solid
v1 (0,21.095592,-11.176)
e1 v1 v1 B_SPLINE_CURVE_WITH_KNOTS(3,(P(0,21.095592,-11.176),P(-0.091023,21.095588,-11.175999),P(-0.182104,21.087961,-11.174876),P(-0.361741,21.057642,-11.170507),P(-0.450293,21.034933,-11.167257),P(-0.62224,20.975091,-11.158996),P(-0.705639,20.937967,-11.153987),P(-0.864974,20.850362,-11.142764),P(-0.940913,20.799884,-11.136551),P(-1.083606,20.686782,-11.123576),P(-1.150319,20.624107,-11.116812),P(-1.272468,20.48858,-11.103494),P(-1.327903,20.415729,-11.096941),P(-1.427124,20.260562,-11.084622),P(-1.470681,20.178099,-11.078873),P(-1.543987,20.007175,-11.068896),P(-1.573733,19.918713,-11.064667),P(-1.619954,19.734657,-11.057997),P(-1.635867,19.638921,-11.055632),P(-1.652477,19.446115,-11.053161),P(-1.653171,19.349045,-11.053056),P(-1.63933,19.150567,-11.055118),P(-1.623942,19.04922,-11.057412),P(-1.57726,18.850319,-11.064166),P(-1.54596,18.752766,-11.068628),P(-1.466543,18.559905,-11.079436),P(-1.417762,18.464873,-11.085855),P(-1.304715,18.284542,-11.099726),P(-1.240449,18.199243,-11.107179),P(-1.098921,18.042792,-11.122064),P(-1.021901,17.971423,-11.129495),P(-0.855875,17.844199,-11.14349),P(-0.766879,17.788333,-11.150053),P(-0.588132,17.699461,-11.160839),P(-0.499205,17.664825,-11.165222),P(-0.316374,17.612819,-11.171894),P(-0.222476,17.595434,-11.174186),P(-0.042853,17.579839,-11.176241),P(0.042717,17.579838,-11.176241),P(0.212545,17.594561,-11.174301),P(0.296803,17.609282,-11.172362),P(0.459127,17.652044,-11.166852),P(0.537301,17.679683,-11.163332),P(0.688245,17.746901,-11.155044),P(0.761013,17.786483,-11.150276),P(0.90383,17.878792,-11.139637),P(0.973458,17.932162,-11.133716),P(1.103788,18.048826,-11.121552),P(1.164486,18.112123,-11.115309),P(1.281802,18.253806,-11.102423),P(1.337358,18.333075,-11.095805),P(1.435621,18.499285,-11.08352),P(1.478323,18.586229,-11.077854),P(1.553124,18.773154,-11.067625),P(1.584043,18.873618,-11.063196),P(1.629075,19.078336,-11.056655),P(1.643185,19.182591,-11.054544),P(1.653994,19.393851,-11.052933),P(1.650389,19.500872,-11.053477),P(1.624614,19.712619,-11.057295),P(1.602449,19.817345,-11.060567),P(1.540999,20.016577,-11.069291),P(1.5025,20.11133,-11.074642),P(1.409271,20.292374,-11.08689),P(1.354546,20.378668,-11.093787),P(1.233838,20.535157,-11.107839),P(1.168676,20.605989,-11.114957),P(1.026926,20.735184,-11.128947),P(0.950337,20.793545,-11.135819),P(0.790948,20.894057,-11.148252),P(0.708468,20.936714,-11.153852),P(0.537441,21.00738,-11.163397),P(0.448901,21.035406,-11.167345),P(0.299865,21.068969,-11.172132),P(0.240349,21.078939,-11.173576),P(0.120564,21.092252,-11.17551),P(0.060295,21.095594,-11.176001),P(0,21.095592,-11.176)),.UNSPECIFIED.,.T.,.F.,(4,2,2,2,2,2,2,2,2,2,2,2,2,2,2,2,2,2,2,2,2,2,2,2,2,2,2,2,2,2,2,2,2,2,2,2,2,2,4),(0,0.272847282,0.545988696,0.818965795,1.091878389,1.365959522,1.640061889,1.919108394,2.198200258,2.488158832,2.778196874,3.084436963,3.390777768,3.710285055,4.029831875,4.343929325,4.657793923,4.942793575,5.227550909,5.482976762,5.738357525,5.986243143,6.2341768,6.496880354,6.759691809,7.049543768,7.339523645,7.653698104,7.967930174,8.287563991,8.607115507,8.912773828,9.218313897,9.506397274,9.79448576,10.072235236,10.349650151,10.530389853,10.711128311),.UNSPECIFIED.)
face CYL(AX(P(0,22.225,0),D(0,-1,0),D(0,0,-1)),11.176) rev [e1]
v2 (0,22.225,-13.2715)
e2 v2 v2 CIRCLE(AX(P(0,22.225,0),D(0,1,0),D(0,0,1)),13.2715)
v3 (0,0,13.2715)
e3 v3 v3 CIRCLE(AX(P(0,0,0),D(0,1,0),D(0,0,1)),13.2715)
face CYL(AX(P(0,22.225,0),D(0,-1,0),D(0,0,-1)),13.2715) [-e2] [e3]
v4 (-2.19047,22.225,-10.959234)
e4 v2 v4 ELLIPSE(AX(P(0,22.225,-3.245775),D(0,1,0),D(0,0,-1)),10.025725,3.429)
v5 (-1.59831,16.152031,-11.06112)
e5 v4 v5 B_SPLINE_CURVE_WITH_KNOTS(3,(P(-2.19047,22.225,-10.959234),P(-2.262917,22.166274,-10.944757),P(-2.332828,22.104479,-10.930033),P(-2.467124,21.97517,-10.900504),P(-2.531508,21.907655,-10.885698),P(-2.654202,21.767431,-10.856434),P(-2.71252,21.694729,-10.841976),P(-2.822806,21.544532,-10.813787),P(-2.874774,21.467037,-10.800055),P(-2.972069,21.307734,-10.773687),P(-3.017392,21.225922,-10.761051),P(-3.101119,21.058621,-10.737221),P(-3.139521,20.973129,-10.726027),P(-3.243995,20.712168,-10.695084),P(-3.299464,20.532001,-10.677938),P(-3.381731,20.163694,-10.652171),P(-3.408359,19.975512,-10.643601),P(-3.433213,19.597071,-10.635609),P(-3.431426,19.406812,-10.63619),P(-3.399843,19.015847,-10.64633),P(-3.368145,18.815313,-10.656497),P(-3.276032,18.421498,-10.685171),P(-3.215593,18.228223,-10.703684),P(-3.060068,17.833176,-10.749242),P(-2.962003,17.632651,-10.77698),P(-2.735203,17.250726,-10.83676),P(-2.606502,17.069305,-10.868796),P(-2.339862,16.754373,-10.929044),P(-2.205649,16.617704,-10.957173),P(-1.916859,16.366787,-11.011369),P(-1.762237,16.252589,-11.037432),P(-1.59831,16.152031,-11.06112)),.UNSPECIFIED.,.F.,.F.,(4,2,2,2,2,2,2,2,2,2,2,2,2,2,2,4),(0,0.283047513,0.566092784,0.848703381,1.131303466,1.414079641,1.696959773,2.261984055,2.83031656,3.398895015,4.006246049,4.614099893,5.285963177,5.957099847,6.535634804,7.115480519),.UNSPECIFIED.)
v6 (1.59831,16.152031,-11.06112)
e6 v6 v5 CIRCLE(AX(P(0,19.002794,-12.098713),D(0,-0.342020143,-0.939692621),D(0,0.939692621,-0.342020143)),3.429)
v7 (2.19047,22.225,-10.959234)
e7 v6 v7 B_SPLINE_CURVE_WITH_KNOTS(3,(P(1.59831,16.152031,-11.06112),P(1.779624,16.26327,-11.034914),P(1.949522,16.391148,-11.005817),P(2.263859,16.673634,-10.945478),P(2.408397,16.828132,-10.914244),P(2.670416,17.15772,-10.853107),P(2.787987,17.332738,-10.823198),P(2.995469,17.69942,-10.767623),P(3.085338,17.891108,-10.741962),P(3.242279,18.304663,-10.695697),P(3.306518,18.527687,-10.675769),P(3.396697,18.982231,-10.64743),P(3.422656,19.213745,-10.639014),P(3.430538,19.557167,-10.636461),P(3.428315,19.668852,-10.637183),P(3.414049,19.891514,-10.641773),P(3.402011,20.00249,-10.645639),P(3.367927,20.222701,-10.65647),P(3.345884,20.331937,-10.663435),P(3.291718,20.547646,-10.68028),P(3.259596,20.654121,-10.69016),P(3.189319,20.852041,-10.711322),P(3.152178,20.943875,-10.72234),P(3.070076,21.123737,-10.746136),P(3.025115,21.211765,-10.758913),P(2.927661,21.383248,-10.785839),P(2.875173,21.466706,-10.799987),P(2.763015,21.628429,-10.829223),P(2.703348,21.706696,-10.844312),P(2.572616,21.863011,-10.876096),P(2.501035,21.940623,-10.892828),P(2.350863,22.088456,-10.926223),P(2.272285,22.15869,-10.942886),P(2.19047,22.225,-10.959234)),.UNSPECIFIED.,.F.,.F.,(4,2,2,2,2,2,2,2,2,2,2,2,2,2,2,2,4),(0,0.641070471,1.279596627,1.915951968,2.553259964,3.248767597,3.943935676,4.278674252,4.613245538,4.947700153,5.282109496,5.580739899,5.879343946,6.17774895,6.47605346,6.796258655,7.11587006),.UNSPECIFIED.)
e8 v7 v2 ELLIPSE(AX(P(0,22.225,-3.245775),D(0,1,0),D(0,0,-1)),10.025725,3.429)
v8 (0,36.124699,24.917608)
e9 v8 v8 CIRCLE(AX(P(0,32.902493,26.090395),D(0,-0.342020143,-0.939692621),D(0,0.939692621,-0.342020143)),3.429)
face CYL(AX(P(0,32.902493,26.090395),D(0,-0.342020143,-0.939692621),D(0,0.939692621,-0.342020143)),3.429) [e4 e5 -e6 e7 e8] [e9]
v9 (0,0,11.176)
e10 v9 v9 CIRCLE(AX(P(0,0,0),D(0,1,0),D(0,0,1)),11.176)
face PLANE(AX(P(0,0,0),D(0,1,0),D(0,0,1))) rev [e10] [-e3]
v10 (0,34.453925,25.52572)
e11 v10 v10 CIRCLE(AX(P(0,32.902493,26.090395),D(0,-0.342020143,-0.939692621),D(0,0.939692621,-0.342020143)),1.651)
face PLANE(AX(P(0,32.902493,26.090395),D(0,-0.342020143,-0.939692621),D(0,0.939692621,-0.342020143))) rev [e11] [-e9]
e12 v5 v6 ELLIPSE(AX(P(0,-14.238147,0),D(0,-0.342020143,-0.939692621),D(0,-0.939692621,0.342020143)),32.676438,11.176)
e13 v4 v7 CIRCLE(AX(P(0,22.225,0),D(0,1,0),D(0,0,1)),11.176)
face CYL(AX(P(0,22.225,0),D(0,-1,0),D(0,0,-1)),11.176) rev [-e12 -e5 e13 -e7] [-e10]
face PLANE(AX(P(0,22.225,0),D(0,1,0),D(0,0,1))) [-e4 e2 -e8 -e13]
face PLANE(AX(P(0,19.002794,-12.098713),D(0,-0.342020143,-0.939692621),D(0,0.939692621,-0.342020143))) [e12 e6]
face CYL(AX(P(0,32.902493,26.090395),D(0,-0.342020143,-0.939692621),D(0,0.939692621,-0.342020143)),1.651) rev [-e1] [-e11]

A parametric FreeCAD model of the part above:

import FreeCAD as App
import Part
import Sketcher
from FreeCAD import Vector
Q = App.Units.Quantity

doc = App.newDocument("Part")
body = doc.addObject("PartDesign::Body", "Body")

# Sketch on XZ plane
sketch1 = body.newObject("Sketcher::SketchObject", "Sketch")
sketch1.AttachmentSupport = (doc.getObject("XZ_Plane"), [""])
sketch1.MapMode = "FlatFace"
sketch1.addGeometry([
    Part.Circle(Vector(0, 0, 0), Vector(0, 0, 1), 13),
    Part.Circle(Vector(0, 0, 0), Vector(0, 0, 1), 11),
], False)
sketch1.addConstraint([
    Sketcher.Constraint("Coincident", 0, 3, -1, 1),
    Sketcher.Constraint("Coincident", 1, 3, -1, 1),
    Sketcher.Constraint("Diameter", 1, Q("0.88 in")),
    Sketcher.Constraint("Diameter", 0, Q("1.045 in")),
])
pad1 = body.newObject("PartDesign::Pad", "Pad")
pad1.Profile = sketch1
pad1.Length = Q("0.875 in")
pad1.Reversed = True

# Sketch on an angled plane
sketch2 = body.newObject("Sketcher::SketchObject", "Sketch001")
sketch2.Placement = App.Placement(Vector(0, -1.665547, -4.576052), App.Rotation(Vector(-1, 0, 0), Vector(0, 0.939692621, -0.342020143), Vector(0, -0.342020143, -0.939692621), "ZXY"))
sketch2.addGeometry([
    Part.Circle(Vector(0, 22, 0), Vector(0, 0, 1), 3.4),
    Part.Circle(Vector(0, 22, 0), Vector(0, 0, 1), 1.7),
], False)
sketch2.addConstraint([
    Sketcher.Constraint("Coincident", 1, 3, 0, 3),
    Sketcher.Constraint("PointOnObject", 0, 3, -2),
    Sketcher.Constraint("Diameter", 0, Q("0.27 in")),
    Sketcher.Constraint("Diameter", 1, Q("0.13 in")),
    Sketcher.Constraint("DistanceY", -1, 1, 0, 3, 21.994789),
])
pad2 = body.newObject("PartDesign::Pad", "Pad001")
pad2.Profile = sketch2
pad2.Length = Q("1.6 in")
pad2.Reversed = True

doc.recompute()
